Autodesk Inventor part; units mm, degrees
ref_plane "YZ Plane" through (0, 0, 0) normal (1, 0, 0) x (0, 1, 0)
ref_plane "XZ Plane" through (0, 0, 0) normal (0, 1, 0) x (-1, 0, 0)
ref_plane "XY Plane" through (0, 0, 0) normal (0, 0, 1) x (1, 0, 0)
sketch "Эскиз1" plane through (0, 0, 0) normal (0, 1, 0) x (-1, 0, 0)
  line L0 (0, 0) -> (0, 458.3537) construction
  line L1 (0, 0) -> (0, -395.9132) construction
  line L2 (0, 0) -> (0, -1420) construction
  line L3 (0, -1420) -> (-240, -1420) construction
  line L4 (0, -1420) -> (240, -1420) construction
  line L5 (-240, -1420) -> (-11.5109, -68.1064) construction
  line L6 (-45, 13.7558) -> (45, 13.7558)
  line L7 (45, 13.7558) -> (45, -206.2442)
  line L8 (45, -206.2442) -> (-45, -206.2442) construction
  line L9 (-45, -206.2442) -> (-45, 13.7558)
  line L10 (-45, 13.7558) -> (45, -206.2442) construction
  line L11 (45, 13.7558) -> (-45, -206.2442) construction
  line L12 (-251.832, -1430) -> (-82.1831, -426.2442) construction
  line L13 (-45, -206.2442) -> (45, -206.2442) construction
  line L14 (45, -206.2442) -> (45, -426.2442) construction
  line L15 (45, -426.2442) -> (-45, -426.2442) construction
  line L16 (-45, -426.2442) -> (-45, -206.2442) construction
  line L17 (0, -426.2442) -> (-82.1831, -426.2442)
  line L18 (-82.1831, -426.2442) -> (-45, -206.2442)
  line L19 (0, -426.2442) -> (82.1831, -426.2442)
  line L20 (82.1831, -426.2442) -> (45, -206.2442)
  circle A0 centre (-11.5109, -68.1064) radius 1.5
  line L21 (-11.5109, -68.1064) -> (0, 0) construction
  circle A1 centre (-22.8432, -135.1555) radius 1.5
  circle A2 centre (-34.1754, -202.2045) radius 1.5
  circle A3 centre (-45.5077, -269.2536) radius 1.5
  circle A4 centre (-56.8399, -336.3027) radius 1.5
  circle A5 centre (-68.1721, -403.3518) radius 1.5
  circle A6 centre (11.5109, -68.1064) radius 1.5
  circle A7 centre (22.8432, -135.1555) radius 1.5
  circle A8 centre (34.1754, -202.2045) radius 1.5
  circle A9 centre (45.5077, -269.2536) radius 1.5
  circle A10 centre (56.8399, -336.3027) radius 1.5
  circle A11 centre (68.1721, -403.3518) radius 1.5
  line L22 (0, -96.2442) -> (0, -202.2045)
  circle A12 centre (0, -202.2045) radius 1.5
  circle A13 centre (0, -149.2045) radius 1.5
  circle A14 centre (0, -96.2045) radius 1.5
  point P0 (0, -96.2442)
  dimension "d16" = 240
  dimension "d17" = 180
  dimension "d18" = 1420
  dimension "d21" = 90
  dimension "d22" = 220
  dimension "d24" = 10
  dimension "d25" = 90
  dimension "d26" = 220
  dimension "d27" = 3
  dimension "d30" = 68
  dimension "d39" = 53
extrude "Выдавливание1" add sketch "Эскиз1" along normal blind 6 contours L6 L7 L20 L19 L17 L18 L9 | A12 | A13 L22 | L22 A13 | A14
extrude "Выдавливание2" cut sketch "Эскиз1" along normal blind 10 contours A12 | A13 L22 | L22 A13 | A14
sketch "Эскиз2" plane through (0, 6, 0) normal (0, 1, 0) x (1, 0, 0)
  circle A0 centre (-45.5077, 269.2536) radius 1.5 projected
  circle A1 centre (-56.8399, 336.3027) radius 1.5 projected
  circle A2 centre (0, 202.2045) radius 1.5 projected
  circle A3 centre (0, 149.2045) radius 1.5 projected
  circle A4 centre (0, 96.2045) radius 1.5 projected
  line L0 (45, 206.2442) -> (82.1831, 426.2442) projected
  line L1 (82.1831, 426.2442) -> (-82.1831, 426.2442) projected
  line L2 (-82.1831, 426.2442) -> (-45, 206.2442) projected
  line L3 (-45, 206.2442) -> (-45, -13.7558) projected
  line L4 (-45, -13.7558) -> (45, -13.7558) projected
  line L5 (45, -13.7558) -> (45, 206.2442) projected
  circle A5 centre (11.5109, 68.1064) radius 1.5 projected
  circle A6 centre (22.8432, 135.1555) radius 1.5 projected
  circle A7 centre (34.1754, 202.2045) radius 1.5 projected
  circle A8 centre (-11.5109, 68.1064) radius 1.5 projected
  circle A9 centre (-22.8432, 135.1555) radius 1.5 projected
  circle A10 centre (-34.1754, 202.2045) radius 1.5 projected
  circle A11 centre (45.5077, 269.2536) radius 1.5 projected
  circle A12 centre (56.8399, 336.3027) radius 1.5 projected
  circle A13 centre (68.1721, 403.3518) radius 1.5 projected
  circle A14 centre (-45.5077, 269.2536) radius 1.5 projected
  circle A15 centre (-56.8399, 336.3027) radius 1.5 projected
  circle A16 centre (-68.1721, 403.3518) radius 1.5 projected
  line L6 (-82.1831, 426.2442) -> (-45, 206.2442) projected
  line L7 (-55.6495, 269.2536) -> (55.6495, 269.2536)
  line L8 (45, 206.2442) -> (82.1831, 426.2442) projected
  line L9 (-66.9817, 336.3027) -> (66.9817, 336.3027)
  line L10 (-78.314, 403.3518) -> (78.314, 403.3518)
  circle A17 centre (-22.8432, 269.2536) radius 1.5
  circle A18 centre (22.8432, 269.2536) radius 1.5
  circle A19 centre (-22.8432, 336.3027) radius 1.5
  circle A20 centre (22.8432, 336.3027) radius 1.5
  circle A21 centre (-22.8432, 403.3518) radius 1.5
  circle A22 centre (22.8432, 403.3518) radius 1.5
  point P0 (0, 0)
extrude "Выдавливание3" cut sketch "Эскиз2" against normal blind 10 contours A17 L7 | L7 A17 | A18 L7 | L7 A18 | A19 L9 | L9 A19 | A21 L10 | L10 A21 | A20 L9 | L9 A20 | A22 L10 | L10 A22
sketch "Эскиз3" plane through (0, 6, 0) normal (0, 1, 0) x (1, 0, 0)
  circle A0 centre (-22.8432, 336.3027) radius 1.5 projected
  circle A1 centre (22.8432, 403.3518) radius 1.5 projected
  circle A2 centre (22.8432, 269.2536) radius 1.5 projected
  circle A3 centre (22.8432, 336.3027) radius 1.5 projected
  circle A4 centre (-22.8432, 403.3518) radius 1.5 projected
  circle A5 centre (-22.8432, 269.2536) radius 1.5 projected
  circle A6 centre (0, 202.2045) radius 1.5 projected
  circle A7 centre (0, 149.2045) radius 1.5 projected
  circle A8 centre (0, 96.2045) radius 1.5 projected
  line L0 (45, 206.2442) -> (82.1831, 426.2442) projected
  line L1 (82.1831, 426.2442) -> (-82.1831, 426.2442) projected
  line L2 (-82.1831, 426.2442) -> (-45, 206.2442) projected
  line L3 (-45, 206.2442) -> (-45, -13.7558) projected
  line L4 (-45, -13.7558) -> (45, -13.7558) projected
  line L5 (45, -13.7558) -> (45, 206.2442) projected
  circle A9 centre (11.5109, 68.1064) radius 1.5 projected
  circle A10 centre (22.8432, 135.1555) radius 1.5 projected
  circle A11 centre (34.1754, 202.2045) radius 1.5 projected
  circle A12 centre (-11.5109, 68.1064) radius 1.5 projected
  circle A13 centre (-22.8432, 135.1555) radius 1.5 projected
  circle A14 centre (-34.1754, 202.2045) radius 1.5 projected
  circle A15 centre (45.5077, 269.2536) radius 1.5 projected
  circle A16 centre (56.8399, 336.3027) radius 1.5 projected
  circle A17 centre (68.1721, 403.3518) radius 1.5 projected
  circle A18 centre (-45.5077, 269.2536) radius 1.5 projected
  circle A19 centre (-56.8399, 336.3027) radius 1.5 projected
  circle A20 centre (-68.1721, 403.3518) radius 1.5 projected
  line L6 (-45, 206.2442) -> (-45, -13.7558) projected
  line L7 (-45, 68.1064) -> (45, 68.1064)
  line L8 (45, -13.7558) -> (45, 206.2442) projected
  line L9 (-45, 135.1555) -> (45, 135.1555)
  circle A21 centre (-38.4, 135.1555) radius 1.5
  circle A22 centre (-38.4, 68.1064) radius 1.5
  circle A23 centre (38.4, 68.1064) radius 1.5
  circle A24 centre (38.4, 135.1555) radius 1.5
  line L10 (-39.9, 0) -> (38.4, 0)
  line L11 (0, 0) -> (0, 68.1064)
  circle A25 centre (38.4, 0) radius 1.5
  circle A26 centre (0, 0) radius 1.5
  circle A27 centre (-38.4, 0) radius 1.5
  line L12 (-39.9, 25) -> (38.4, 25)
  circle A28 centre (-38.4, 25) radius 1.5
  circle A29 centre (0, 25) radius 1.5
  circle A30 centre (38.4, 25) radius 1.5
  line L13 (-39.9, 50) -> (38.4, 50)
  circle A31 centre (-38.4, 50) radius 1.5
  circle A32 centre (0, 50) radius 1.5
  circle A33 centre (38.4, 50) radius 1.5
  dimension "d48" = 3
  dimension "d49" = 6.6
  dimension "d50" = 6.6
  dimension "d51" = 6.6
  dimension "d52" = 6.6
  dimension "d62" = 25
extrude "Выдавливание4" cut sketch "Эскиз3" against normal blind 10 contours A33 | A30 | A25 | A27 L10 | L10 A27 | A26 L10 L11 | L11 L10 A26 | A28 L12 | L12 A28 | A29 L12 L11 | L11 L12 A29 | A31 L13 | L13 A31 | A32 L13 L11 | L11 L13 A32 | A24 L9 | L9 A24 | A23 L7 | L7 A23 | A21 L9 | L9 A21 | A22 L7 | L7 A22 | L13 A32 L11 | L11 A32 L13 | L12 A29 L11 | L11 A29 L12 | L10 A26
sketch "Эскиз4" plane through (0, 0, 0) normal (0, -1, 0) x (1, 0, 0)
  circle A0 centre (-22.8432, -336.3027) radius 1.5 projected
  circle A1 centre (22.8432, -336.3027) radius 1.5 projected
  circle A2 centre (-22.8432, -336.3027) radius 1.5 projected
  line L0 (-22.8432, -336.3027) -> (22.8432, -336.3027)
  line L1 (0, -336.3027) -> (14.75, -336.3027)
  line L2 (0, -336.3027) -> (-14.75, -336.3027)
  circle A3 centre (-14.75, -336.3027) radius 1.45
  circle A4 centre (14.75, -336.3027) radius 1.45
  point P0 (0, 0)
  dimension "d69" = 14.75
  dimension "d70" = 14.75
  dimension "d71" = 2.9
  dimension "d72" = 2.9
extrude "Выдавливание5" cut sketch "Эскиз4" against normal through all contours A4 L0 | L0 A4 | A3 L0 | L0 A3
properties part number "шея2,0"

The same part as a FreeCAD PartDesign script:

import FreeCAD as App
import Part
import Sketcher
from FreeCAD import Vector


def add_polygon(sketch, points):
    """Adds a closed chain of lines whose ends are joined by coincident constraints."""
    first, n = sketch.GeometryCount, len(points)
    for a, b in zip(points, points[1:] + points[:1]):
        sketch.addGeometry(Part.LineSegment(App.Vector(*a, 0), App.Vector(*b, 0)), False)
    for i in range(n):
        sketch.addConstraint(Sketcher.Constraint("Coincident", first + i, 2, first + (i + 1) % n, 1))

doc = App.newDocument("Part")
params = doc.addObject("Spreadsheet::Sheet", "Params")
for row, (alias, value) in enumerate([
    ("sketch1_diameter", "3 mm"),
    ("sketch1_width", "90 mm"),
    ("sketch1_height", "220 mm"),
    ("sketch1_length", "223.12 mm"),
    ("pad1_length", "6 mm"),
    ("sketch2_diameter", "3 mm"),
    ("pocket1_length", "10 mm"),
    ("sketch3_diameter", "3 mm"),
    ("pocket2_length", "10 mm"),
    ("sketch4_diameter", "3 mm"),
    ("pocket3_length", "10 mm"),
    ("sketch5_diameter", "2.9 mm"),
], start=1):
    params.set(f"A{row}", alias)
    params.set(f"B{row}", "=" + value)
    params.setAlias(f"B{row}", alias)

body = doc.addObject("PartDesign::Body", "Body")

sketch1 = body.newObject("Sketcher::SketchObject", "Sketch")
sketch1.AttachmentSupport = (doc.getObject("XZ_Plane"), [""])
sketch1.MapMode = "FlatFace"
add_polygon(sketch1, [(-45, 13.8), (45, 13.8), (45, -206.2), (82.2, -426.2), (-82.2, -426.2), (-45, -206.2)])
sketch1.addGeometry(Part.Circle(Vector(68.2, -403.4, 0), Vector(0, 0, 1), 1.5), False)
sketch1.addGeometry(Part.Circle(Vector(56.8, -336.3, 0), Vector(0, 0, 1), 1.5), False)
sketch1.addGeometry(Part.Circle(Vector(45.5, -269.3, 0), Vector(0, 0, 1), 1.5), False)
sketch1.addGeometry(Part.Circle(Vector(-68.2, -403.4, 0), Vector(0, 0, 1), 1.5), False)
sketch1.addGeometry(Part.Circle(Vector(-56.8, -336.3, 0), Vector(0, 0, 1), 1.5), False)
sketch1.addGeometry(Part.Circle(Vector(-45.5, -269.3, 0), Vector(0, 0, 1), 1.5), False)
sketch1.addGeometry(Part.Circle(Vector(34.2, -202.2, 0), Vector(0, 0, 1), 1.5), False)
sketch1.addGeometry(Part.Circle(Vector(22.8, -135.2, 0), Vector(0, 0, 1), 1.5), False)
sketch1.addGeometry(Part.Circle(Vector(11.5, -68.1, 0), Vector(0, 0, 1), 1.5), False)
sketch1.addGeometry(Part.Circle(Vector(-34.2, -202.2, 0), Vector(0, 0, 1), 1.5), False)
sketch1.addGeometry(Part.Circle(Vector(-22.8, -135.2, 0), Vector(0, 0, 1), 1.5), False)
sketch1.addGeometry(Part.Circle(Vector(-11.5, -68.1, 0), Vector(0, 0, 1), 1.5), False)
sketch1.addConstraint([
    Sketcher.Constraint("Horizontal", 0),
    Sketcher.Constraint("Vertical", 1),
    Sketcher.Constraint("Horizontal", 3),
    Sketcher.Constraint("Vertical", 5),
    Sketcher.Constraint("Equal", 6, 7),
    Sketcher.Constraint("Equal", 7, 8),
    Sketcher.Constraint("Equal", 8, 9),
    Sketcher.Constraint("Equal", 9, 10),
    Sketcher.Constraint("Equal", 10, 11),
    Sketcher.Constraint("Equal", 11, 12),
    Sketcher.Constraint("Equal", 12, 13),
    Sketcher.Constraint("Equal", 13, 14),
    Sketcher.Constraint("Equal", 14, 15),
    Sketcher.Constraint("Equal", 15, 16),
    Sketcher.Constraint("Equal", 16, 17),
    Sketcher.Constraint("Symmetric", 6, 3, 9, 3, -2),
    Sketcher.Constraint("Symmetric", 7, 3, 10, 3, -2),
    Sketcher.Constraint("Symmetric", 8, 3, 11, 3, -2),
    Sketcher.Constraint("Symmetric", 12, 3, 15, 3, -2),
    Sketcher.Constraint("Symmetric", 13, 3, 16, 3, -2),
    Sketcher.Constraint("Symmetric", 14, 3, 17, 3, -2),
    Sketcher.Constraint("Symmetric", 1, 2, 4, 2, -2),
    Sketcher.Constraint("Equal", 2, 4),
    Sketcher.Constraint("Diameter", 6, 3.0),
    Sketcher.Constraint("DistanceX", 0, 1, 0, 2, 90.0),
    Sketcher.Constraint("DistanceY", 1, 2, 1, 1, 220.0),
    Sketcher.Constraint("Distance", 2, 223.12),
    Sketcher.Constraint("DistanceX", -1, 1, 7, 3, 56.84),
    Sketcher.Constraint("DistanceX", 3, 2, 3, 1, 164.3662),
    Sketcher.Constraint("DistanceX", -1, 1, 6, 3, 68.172),
    Sketcher.Constraint("DistanceX", -1, 1, 14, 3, 11.511),
    Sketcher.Constraint("DistanceY", 6, 3, 7, 3, 67.049),
    Sketcher.Constraint("DistanceY", 7, 3, 8, 3, 67.049),
    Sketcher.Constraint("DistanceY", 8, 3, 12, 3, 67.049),
    Sketcher.Constraint("DistanceX", 11, 3, 12, 3, 79.683),
    Sketcher.Constraint("DistanceY", 12, 3, 13, 3, 67.049),
    Sketcher.Constraint("DistanceX", 11, 3, 13, 3, 68.351),
    Sketcher.Constraint("DistanceX", 10, 3, 13, 3, 79.683),
    Sketcher.Constraint("DistanceY", 13, 3, 14, 3, 67.049),
    Sketcher.Constraint("DistanceY", 6, 3, -1, 1, 403.3518),
    Sketcher.Constraint("DistanceY", -1, 1, 0, 2, 13.7558),
])
sketch1.setExpression("Constraints[29]", "Params.sketch1_diameter")
sketch1.setExpression("Constraints[30]", "Params.sketch1_width")
sketch1.setExpression("Constraints[31]", "Params.sketch1_height")
sketch1.setExpression("Constraints[32]", "Params.sketch1_length")
pad1 = body.newObject("PartDesign::Pad", "Pad")
pad1.Profile = sketch1
pad1.setExpression("Length", "Params.pad1_length")
pad1.Reversed = True

sketch2 = body.newObject("Sketcher::SketchObject", "Sketch001")
sketch2.AttachmentSupport = (doc.getObject("XZ_Plane"), [""])
sketch2.MapMode = "FlatFace"
sketch2.addGeometry([
    Part.Circle(Vector(0, -202.2, 0), Vector(0, 0, 1), 1.5),
    Part.Circle(Vector(0, -149.2, 0), Vector(0, 0, 1), 1.5),
    Part.Circle(Vector(0, -96.2, 0), Vector(0, 0, 1), 1.5),
], False)
sketch2.addConstraint([
    Sketcher.Constraint("Equal", 0, 1),
    Sketcher.Constraint("Equal", 1, 2),
    Sketcher.Constraint("PointOnObject", 0, 3, -2),
    Sketcher.Constraint("PointOnObject", 1, 3, -2),
    Sketcher.Constraint("PointOnObject", 2, 3, -2),
    Sketcher.Constraint("Diameter", 0, 3.0),
    Sketcher.Constraint("DistanceY", 0, 3, 1, 3, 53.0),
    Sketcher.Constraint("DistanceY", 1, 3, 2, 3, 53.0),
    Sketcher.Constraint("DistanceY", 0, 3, -1, 1, 202.2045),
])
sketch2.setExpression("Constraints[5]", "Params.sketch2_diameter")
pocket1 = body.newObject("PartDesign::Pocket", "Pocket")
pocket1.Profile = sketch2
pocket1.setExpression("Length", "Params.pocket1_length")

sketch3 = body.newObject("Sketcher::SketchObject", "Sketch002")
sketch3.AttachmentSupport = (doc.getObject("XZ_Plane"), [""])
sketch3.MapMode = "FlatFace"
sketch3.AttachmentOffset = App.Placement(Vector(0, 0, -6), App.Rotation())
sketch3.addGeometry([
    Part.Circle(Vector(-22.8, -269.3, 0), Vector(0, 0, 1), 1.5),
    Part.Circle(Vector(22.8, -269.3, 0), Vector(0, 0, 1), 1.5),
    Part.Circle(Vector(-22.8, -336.3, 0), Vector(0, 0, 1), 1.5),
    Part.Circle(Vector(-22.8, -403.4, 0), Vector(0, 0, 1), 1.5),
    Part.Circle(Vector(22.8, -336.3, 0), Vector(0, 0, 1), 1.5),
    Part.Circle(Vector(22.8, -403.4, 0), Vector(0, 0, 1), 1.5),
], False)
sketch3.addConstraint([
    Sketcher.Constraint("Equal", 0, 1),
    Sketcher.Constraint("Equal", 1, 2),
    Sketcher.Constraint("Equal", 2, 3),
    Sketcher.Constraint("Equal", 3, 4),
    Sketcher.Constraint("Equal", 4, 5),
    Sketcher.Constraint("Symmetric", 0, 3, 1, 3, -2),
    Sketcher.Constraint("Symmetric", 2, 3, 4, 3, -2),
    Sketcher.Constraint("Symmetric", 3, 3, 5, 3, -2),
    Sketcher.Constraint("Vertical", 0, 3, 2, 3),
    Sketcher.Constraint("Vertical", 2, 3, 3, 3),
    Sketcher.Constraint("Diameter", 0, 3.0),
    Sketcher.Constraint("DistanceY", 2, 3, 0, 3, 67.049),
    Sketcher.Constraint("DistanceY", 3, 3, 2, 3, 67.049),
    Sketcher.Constraint("DistanceX", 0, 3, -1, 1, 22.8432),
    Sketcher.Constraint("DistanceY", 0, 3, -1, 1, 269.2536),
])
sketch3.setExpression("Constraints[10]", "Params.sketch3_diameter")
pocket2 = body.newObject("PartDesign::Pocket", "Pocket001")
pocket2.Profile = sketch3
pocket2.setExpression("Length", "Params.pocket2_length")
pocket2.Reversed = True

sketch4 = body.newObject("Sketcher::SketchObject", "Sketch003")
sketch4.AttachmentSupport = (doc.getObject("XZ_Plane"), [""])
sketch4.MapMode = "FlatFace"
sketch4.AttachmentOffset = App.Placement(Vector(0, 0, -6), App.Rotation())
sketch4.addGeometry([
    Part.Circle(Vector(38.4, -50, 0), Vector(0, 0, 1), 1.5),
    Part.Circle(Vector(38.4, -25, 0), Vector(0, 0, 1), 1.5),
    Part.Circle(Vector(38.4, 0, 0), Vector(0, 0, 1), 1.5),
    Part.Circle(Vector(-38.4, 0, 0), Vector(0, 0, 1), 1.5),
    Part.Circle(Vector(0, 0, 0), Vector(0, 0, 1), 1.5),
    Part.Circle(Vector(-38.4, -25, 0), Vector(0, 0, 1), 1.5),
    Part.Circle(Vector(0, -25, 0), Vector(0, 0, 1), 1.5),
    Part.Circle(Vector(-38.4, -50, 0), Vector(0, 0, 1), 1.5),
    Part.Circle(Vector(0, -50, 0), Vector(0, 0, 1), 1.5),
    Part.Circle(Vector(38.4, -135.2, 0), Vector(0, 0, 1), 1.5),
    Part.Circle(Vector(38.4, -68.1, 0), Vector(0, 0, 1), 1.5),
    Part.Circle(Vector(-38.4, -135.2, 0), Vector(0, 0, 1), 1.5),
    Part.Circle(Vector(-38.4, -68.1, 0), Vector(0, 0, 1), 1.5),
], False)
sketch4.addConstraint([
    Sketcher.Constraint("Coincident", 4, 3, -1, 1),
    Sketcher.Constraint("Equal", 0, 1),
    Sketcher.Constraint("Equal", 1, 2),
    Sketcher.Constraint("Equal", 2, 3),
    Sketcher.Constraint("Equal", 3, 4),
    Sketcher.Constraint("Equal", 4, 5),
    Sketcher.Constraint("Equal", 5, 6),
    Sketcher.Constraint("Equal", 6, 7),
    Sketcher.Constraint("Equal", 7, 8),
    Sketcher.Constraint("Equal", 8, 9),
    Sketcher.Constraint("Equal", 9, 10),
    Sketcher.Constraint("Equal", 10, 11),
    Sketcher.Constraint("Equal", 11, 12),
    Sketcher.Constraint("Symmetric", 2, 3, 3, 3, -1, 1),
    Sketcher.Constraint("Symmetric", 1, 3, 5, 3, -2),
    Sketcher.Constraint("Symmetric", 0, 3, 7, 3, -2),
    Sketcher.Constraint("Symmetric", 9, 3, 11, 3, -2),
    Sketcher.Constraint("Symmetric", 10, 3, 12, 3, -2),
    Sketcher.Constraint("PointOnObject", 2, 3, -1),
    Sketcher.Constraint("PointOnObject", 6, 3, -2),
    Sketcher.Constraint("PointOnObject", 8, 3, -2),
    Sketcher.Constraint("Horizontal", 5, 3, 6, 3),
    Sketcher.Constraint("Horizontal", 7, 3, 8, 3),
    Sketcher.Constraint("Vertical", 0, 3, 1, 3),
    Sketcher.Constraint("Vertical", 1, 3, 2, 3),
    Sketcher.Constraint("Vertical", 2, 3, 9, 3),
    Sketcher.Constraint("Vertical", 9, 3, 10, 3),
    Sketcher.Constraint("Diameter", 0, 3.0),
    Sketcher.Constraint("DistanceY", 1, 3, -1, 1, 25.0),
    Sketcher.Constraint("DistanceY", 0, 3, 1, 3, 25.0),
    Sketcher.Constraint("DistanceX", -1, 1, 0, 3, 38.4),
    Sketcher.Constraint("DistanceY", 9, 3, 10, 3, 67.049),
    Sketcher.Constraint("DistanceY", 9, 3, -1, 1, 135.1555),
])
sketch4.setExpression("Constraints[27]", "Params.sketch4_diameter")
pocket3 = body.newObject("PartDesign::Pocket", "Pocket002")
pocket3.Profile = sketch4
pocket3.setExpression("Length", "Params.pocket3_length")
pocket3.Reversed = True

sketch5 = body.newObject("Sketcher::SketchObject", "Sketch004")
sketch5.AttachmentSupport = (doc.getObject("XZ_Plane"), [""])
sketch5.MapMode = "FlatFace"
sketch5.addGeometry([
    Part.Circle(Vector(14.8, -336.3, 0), Vector(0, 0, 1), 1.4),
    Part.Circle(Vector(-14.8, -336.3, 0), Vector(0, 0, 1), 1.4),
], False)
sketch5.addConstraint([
    Sketcher.Constraint("Equal", 0, 1),
    Sketcher.Constraint("Symmetric", 0, 3, 1, 3, -2),
    Sketcher.Constraint("Diameter", 0, 2.9),
    Sketcher.Constraint("DistanceX", -1, 1, 0, 3, 14.75),
    Sketcher.Constraint("DistanceY", 0, 3, -1, 1, 336.3027),
])
sketch5.setExpression("Constraints[2]", "Params.sketch5_diameter")
pocket4 = body.newObject("PartDesign::Pocket", "Pocket003")
pocket4.Profile = sketch5
pocket4.Type = "ThroughAll"

doc.recompute()
